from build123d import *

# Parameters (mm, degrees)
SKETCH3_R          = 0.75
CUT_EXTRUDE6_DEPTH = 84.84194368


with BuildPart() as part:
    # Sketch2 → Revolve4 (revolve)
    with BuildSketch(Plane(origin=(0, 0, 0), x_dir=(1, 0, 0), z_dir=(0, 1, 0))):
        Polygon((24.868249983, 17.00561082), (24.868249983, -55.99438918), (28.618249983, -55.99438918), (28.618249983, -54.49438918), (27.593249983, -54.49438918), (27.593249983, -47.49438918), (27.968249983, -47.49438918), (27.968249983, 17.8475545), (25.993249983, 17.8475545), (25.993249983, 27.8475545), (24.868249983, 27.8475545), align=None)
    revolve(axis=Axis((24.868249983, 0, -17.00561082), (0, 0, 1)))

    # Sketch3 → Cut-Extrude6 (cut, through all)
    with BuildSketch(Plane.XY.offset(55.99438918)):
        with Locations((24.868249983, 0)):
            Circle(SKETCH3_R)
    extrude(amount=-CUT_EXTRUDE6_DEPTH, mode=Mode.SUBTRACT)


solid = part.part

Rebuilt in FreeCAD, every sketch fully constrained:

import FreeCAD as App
import Part
import Sketcher

V = App.Vector

doc = App.newDocument("Part")
body = doc.addObject("PartDesign::Body", "Body")

# Sketch on XZ plane
sketch1 = body.newObject("Sketcher::SketchObject", "Sketch")
sketch1.AttachmentSupport = (doc.getObject("XZ_Plane"), [""])
sketch1.MapMode = "FlatFace"
sketch1.addGeometry(Part.LineSegment(V(24.87, 55.99, 0), V(28.62, 55.99, 0)), False)
sketch1.addGeometry(Part.LineSegment(V(28.62, 55.99, 0), V(28.62, 54.49, 0)), False)
sketch1.addGeometry(Part.LineSegment(V(28.62, 54.49, 0), V(27.59, 54.49, 0)), False)
sketch1.addGeometry(Part.LineSegment(V(27.59, 54.49, 0), V(27.59, 47.49, 0)), False)
sketch1.addGeometry(Part.LineSegment(V(27.59, 47.49, 0), V(27.97, 47.49, 0)), False)
sketch1.addGeometry(Part.LineSegment(V(27.97, 47.49, 0), V(27.97, -17.85, 0)), False)
sketch1.addGeometry(Part.LineSegment(V(27.97, -17.85, 0), V(25.99, -17.85, 0)), False)
sketch1.addGeometry(Part.LineSegment(V(25.99, -17.85, 0), V(25.99, -27.85, 0)), False)
sketch1.addGeometry(Part.LineSegment(V(25.99, -27.85, 0), V(24.87, -27.85, 0)), False)
sketch1.addGeometry(Part.LineSegment(V(24.87, -27.85, 0), V(24.87, 55.99, 0)), False)
sketch1.addGeometry(Part.LineSegment(V(24.87, -27.85, 0), V(24.87, 55.99, 0)), True)  # axis
sketch1.addConstraint(Sketcher.Constraint("Coincident", 0, 2, 1, 1))
sketch1.addConstraint(Sketcher.Constraint("Coincident", 1, 2, 2, 1))
sketch1.addConstraint(Sketcher.Constraint("Coincident", 2, 2, 3, 1))
sketch1.addConstraint(Sketcher.Constraint("Coincident", 3, 2, 4, 1))
sketch1.addConstraint(Sketcher.Constraint("Coincident", 4, 2, 5, 1))
sketch1.addConstraint(Sketcher.Constraint("Coincident", 5, 2, 6, 1))
sketch1.addConstraint(Sketcher.Constraint("Coincident", 6, 2, 7, 1))
sketch1.addConstraint(Sketcher.Constraint("Coincident", 7, 2, 8, 1))
sketch1.addConstraint(Sketcher.Constraint("Coincident", 8, 2, 9, 1))
sketch1.addConstraint(Sketcher.Constraint("Coincident", 9, 2, 0, 1))
sketch1.addConstraint(Sketcher.Constraint("Horizontal", 0))
sketch1.addConstraint(Sketcher.Constraint("Vertical", 1))
sketch1.addConstraint(Sketcher.Constraint("Horizontal", 2))
sketch1.addConstraint(Sketcher.Constraint("Vertical", 3))
sketch1.addConstraint(Sketcher.Constraint("Horizontal", 4))
sketch1.addConstraint(Sketcher.Constraint("Vertical", 5))
sketch1.addConstraint(Sketcher.Constraint("Horizontal", 6))
sketch1.addConstraint(Sketcher.Constraint("Vertical", 7))
sketch1.addConstraint(Sketcher.Constraint("Horizontal", 8))
sketch1.addConstraint(Sketcher.Constraint("Vertical", 9))
sketch1.addConstraint(Sketcher.Constraint("Vertical", 10))
sketch1.addConstraint(Sketcher.Constraint("Coincident", 10, 1, 8, 2))
sketch1.addConstraint(Sketcher.Constraint("Horizontal", 0, 2, 10, 2))
sketch1.addConstraint(Sketcher.Constraint("DistanceY", 3, 2, 3, 1, 7.0))
sketch1.addConstraint(Sketcher.Constraint("DistanceY", 7, 2, 7, 1, 10.0))
sketch1.addConstraint(Sketcher.Constraint("DistanceY", 1, 2, 1, 1, 1.5))
sketch1.addConstraint(Sketcher.Constraint("DistanceX", 0, 1, 0, 2, 3.75))
sketch1.addConstraint(Sketcher.Constraint("DistanceX", 6, 2, 3, 2, 1.6))
sketch1.addConstraint(Sketcher.Constraint("DistanceX", 8, 2, 5, 2, 3.1))
sketch1.addConstraint(Sketcher.Constraint("DistanceX", 2, 2, 2, 1, 1.025))
sketch1.addConstraint(Sketcher.Constraint("DistanceY", 5, 2, 5, 1, 65.341944))
sketch1.addConstraint(Sketcher.Constraint("DistanceX", -1, 1, 0, 2, 28.61825))
sketch1.addConstraint(Sketcher.Constraint("DistanceY", -1, 1, 0, 2, 55.994389))
revolution = body.newObject("PartDesign::Revolution", "Revolution")
revolution.Profile = sketch1
revolution.ReferenceAxis = (sketch1, ["Axis0"])
revolution.Angle = 360

# Sketch on XY plane
sketch2 = body.newObject("Sketcher::SketchObject", "Sketch001")
sketch2.AttachmentSupport = (doc.getObject("XY_Plane"), [""])
sketch2.MapMode = "FlatFace"
sketch2.AttachmentOffset = App.Placement(V(0, 0, 55.994389), App.Rotation())
sketch2.addGeometry(Part.Circle(V(24.9, 0, 0), V(0, 0, 1), 0.8), False)
sketch2.addConstraint(Sketcher.Constraint("PointOnObject", 0, 3, -1))
sketch2.addConstraint(Sketcher.Constraint("Diameter", 0, 1.5))
sketch2.addConstraint(Sketcher.Constraint("DistanceX", -1, 1, 0, 3, 24.86825))
pocket1 = body.newObject("PartDesign::Pocket", "Pocket")
pocket1.Profile = sketch2
pocket1.Type = "ThroughAll"

doc.recompute()
